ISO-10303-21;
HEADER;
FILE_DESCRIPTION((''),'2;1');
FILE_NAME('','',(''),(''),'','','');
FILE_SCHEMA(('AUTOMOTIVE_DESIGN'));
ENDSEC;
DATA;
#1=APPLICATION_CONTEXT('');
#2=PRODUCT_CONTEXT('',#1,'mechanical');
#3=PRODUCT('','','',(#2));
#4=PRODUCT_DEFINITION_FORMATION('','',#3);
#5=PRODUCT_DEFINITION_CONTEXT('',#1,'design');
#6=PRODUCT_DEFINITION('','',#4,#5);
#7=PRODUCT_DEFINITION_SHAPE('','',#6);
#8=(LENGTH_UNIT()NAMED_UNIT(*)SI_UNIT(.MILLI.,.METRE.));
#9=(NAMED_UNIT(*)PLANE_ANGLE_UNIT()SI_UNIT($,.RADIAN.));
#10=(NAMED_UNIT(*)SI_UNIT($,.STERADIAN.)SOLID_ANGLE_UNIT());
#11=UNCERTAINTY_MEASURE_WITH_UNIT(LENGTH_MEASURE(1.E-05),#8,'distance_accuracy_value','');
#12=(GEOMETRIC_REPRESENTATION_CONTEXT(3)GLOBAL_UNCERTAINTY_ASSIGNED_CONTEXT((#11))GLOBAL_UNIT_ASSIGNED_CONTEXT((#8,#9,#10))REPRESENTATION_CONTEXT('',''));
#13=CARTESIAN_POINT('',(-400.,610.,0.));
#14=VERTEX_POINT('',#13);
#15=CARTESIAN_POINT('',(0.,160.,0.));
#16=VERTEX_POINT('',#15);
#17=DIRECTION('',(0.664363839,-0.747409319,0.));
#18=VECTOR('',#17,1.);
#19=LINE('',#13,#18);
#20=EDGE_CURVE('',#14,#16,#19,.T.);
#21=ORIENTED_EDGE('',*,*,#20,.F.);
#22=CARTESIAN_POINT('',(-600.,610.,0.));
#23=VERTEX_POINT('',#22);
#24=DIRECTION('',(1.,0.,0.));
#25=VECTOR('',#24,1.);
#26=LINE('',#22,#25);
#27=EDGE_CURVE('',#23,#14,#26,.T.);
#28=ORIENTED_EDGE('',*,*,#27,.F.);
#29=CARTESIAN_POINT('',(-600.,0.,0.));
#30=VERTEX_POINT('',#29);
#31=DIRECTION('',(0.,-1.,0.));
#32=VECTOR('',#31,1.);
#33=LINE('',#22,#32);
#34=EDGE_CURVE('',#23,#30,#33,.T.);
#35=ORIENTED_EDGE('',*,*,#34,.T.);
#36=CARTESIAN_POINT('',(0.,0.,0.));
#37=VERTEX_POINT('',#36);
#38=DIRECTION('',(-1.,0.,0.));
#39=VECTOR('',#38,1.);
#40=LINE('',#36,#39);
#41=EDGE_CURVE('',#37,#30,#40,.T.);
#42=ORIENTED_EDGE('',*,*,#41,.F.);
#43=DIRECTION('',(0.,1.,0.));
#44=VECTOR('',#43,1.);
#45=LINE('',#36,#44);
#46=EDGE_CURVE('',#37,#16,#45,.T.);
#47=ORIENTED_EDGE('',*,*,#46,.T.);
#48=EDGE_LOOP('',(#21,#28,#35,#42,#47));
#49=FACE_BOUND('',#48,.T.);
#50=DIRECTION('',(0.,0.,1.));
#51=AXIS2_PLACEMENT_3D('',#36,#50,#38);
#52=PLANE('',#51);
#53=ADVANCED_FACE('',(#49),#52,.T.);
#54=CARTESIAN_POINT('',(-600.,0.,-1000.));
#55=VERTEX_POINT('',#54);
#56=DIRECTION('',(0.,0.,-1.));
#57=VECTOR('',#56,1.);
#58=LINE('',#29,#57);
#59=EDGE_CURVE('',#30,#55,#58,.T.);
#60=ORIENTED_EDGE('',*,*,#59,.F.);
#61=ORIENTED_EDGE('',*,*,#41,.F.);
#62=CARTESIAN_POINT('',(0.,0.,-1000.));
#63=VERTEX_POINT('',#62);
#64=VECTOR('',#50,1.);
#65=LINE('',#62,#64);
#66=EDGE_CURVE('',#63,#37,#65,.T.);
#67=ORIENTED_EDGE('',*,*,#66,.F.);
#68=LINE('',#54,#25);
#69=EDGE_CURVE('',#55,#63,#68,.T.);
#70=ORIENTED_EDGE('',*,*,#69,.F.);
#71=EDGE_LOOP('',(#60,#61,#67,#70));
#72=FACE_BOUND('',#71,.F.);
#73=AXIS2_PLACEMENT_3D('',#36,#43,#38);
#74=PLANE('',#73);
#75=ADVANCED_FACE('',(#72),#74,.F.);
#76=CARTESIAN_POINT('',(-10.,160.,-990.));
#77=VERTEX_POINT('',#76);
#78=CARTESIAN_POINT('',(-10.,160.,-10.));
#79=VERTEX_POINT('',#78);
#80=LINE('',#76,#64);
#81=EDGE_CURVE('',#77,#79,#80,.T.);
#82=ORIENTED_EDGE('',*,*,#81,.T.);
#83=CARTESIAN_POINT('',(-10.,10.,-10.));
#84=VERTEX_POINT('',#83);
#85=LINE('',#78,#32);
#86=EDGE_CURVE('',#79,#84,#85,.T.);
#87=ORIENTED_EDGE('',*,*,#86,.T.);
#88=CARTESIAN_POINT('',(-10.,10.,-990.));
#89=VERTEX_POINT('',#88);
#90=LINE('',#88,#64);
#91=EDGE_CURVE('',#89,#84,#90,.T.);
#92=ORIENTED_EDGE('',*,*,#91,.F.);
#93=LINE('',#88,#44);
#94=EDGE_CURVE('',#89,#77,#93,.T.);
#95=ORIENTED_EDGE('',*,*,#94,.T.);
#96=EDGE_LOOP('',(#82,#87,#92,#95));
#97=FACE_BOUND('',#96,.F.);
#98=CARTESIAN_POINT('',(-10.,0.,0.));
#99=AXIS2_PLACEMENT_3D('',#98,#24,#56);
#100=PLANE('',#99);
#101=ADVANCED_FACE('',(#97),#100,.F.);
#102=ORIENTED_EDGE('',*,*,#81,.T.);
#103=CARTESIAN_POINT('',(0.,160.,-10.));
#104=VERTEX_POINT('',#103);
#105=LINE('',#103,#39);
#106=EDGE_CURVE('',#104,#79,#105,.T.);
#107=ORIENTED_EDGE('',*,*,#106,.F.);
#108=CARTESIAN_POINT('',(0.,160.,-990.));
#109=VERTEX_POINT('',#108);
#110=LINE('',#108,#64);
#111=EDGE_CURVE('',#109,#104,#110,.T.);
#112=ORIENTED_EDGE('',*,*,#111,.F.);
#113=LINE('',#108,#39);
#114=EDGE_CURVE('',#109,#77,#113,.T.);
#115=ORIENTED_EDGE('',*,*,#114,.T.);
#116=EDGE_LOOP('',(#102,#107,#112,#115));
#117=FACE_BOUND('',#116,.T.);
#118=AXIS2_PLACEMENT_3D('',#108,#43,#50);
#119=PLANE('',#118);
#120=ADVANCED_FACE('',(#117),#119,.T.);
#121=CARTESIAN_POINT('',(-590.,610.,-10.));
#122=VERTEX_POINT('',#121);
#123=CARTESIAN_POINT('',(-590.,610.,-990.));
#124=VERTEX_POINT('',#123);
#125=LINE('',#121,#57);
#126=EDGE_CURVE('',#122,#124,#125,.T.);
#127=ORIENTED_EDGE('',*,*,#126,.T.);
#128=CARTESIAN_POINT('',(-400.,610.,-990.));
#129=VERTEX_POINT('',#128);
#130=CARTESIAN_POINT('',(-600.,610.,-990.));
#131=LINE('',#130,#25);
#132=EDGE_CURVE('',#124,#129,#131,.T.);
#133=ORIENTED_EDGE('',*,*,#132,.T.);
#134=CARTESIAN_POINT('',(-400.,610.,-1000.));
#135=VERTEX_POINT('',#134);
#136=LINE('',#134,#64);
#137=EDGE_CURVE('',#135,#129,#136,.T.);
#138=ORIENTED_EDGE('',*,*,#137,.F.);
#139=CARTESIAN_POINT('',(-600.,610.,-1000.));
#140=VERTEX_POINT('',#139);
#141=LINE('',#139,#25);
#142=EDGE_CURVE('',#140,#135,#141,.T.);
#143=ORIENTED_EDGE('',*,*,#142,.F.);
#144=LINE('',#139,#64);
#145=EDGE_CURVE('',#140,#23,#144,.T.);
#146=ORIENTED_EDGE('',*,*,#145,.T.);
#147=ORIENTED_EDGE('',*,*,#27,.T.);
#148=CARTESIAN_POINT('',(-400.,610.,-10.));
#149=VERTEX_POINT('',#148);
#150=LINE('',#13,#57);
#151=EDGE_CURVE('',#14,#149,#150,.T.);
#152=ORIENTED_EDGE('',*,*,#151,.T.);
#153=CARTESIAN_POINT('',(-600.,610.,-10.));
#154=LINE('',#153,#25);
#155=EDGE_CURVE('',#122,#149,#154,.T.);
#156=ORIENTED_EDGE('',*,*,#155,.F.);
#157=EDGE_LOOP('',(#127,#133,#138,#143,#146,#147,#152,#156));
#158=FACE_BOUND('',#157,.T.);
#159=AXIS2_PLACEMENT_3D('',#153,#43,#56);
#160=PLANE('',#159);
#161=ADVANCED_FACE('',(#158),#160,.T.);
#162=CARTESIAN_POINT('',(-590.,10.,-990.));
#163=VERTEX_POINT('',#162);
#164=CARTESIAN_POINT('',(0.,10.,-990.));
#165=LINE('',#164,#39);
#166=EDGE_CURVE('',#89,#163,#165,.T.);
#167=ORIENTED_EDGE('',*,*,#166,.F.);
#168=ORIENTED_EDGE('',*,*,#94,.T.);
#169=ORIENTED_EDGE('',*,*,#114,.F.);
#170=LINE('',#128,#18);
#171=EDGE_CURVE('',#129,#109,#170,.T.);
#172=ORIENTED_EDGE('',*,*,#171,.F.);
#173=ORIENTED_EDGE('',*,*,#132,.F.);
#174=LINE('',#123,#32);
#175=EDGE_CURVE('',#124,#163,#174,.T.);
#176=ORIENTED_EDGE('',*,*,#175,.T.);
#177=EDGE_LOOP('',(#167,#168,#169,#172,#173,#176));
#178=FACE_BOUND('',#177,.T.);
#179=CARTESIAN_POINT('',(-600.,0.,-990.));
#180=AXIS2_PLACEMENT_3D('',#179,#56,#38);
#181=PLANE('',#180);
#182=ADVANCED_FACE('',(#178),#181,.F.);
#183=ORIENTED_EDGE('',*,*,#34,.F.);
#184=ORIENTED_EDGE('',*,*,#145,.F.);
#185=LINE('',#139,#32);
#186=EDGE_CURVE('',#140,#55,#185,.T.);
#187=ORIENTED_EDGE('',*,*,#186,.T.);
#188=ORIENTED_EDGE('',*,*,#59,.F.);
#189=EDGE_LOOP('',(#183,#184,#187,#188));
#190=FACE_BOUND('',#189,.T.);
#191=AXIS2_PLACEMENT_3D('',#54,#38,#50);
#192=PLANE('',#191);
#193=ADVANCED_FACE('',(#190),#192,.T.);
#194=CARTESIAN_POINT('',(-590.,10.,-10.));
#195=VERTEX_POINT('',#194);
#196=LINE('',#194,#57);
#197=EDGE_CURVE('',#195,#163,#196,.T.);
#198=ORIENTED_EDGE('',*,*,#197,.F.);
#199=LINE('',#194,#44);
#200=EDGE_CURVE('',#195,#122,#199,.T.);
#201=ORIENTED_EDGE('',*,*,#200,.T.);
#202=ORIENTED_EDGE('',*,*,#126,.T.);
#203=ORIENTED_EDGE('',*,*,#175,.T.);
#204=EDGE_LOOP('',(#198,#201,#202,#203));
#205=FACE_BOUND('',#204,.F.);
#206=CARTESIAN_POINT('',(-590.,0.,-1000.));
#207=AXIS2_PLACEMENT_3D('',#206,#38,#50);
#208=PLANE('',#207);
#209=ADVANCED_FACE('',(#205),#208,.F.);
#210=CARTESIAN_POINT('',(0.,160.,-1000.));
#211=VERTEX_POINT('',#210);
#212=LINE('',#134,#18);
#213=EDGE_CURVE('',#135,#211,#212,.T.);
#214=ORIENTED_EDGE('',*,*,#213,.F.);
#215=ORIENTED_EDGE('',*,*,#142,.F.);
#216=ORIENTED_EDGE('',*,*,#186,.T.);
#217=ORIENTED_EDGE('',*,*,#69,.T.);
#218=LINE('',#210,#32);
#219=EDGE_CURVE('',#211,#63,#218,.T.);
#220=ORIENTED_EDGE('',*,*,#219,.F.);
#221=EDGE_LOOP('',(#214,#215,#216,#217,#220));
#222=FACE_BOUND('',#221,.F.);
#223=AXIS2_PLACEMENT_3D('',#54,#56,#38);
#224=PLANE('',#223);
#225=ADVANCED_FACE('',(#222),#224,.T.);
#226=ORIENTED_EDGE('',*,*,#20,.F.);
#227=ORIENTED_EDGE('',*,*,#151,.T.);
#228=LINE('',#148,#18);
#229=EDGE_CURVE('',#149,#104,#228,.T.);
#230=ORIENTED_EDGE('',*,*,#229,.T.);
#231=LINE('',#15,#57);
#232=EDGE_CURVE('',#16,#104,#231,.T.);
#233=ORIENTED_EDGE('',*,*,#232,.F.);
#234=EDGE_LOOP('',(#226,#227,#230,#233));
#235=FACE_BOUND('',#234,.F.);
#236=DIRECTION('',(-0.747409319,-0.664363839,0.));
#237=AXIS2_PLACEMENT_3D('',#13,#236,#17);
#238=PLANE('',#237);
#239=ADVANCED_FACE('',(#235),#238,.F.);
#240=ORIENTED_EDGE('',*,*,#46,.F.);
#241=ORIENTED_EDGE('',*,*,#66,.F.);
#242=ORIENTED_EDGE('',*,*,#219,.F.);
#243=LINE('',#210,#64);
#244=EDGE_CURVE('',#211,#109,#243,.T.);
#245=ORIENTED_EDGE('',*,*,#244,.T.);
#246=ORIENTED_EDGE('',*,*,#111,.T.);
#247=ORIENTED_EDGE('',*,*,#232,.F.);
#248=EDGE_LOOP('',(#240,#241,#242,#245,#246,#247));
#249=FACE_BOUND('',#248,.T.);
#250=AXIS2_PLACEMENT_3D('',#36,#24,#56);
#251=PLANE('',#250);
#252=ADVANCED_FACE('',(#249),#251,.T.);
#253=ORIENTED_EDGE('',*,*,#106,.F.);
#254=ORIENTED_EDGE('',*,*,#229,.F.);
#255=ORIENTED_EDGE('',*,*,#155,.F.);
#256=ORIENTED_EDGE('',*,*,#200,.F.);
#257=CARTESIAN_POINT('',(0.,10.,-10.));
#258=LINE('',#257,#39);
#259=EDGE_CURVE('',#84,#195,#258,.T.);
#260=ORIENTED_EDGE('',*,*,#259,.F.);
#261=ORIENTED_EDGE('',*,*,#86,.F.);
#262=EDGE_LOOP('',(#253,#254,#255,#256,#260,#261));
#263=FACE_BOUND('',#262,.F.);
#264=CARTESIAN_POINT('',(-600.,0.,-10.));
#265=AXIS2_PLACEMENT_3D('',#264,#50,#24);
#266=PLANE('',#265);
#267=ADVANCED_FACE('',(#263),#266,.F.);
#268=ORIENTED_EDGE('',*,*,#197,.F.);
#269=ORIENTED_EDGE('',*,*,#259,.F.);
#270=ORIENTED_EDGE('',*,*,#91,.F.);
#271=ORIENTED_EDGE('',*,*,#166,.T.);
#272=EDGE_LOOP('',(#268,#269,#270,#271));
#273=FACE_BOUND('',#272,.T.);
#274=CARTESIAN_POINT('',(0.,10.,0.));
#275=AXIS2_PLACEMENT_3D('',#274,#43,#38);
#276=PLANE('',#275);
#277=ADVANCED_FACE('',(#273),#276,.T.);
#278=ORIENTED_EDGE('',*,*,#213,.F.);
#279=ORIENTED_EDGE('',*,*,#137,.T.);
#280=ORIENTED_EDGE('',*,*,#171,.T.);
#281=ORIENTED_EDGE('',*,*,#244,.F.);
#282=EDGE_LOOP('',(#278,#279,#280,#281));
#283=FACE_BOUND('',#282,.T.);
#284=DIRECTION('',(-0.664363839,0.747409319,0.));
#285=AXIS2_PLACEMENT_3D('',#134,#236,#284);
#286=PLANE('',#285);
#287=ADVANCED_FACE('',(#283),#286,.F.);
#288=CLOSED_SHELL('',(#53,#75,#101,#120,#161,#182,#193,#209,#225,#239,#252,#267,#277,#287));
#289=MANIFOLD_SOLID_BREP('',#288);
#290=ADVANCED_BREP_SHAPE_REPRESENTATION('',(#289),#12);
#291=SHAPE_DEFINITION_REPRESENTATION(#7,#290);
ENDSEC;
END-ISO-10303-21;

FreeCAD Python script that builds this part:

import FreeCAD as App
import Part
import Sketcher
from FreeCAD import Vector
Q = App.Units.Quantity


def add_polygon(sketch, points):
    """Adds a closed chain of lines whose ends are joined by coincident constraints."""
    first, n = sketch.GeometryCount, len(points)
    for a, b in zip(points, points[1:] + points[:1]):
        sketch.addGeometry(Part.LineSegment(App.Vector(*a, 0), App.Vector(*b, 0)), False)
    for i in range(n):
        sketch.addConstraint(Sketcher.Constraint("Coincident", first + i, 2, first + (i + 1) % n, 1))

doc = App.newDocument("Part")
body = doc.addObject("PartDesign::Body", "Body")

sketch1 = body.newObject("Sketcher::SketchObject", "Sketch")
sketch1.AttachmentSupport = (doc.getObject("XZ_Plane"), [""])
sketch1.MapMode = "FlatFace"
add_polygon(sketch1, [(-600, 0), (0, 0), (0, -1000), (-600, -1000)])
sketch1.addConstraint([
    Sketcher.Constraint("Horizontal", 0),
    Sketcher.Constraint("Vertical", 1),
    Sketcher.Constraint("Horizontal", 2),
    Sketcher.Constraint("Vertical", 3),
    Sketcher.Constraint("Coincident", 0, 2, -1, 1),
    Sketcher.Constraint("DistanceX", 0, 1, 0, 2, Q("600 mm")),
    Sketcher.Constraint("DistanceY", 1, 2, 1, 1, Q("1000 mm")),
])
pad1 = body.newObject("PartDesign::Pad", "Pad")
pad1.Profile = sketch1
pad1.Length = 10
pad1.Reversed = True

sketch2 = body.newObject("Sketcher::SketchObject", "Sketch001")
sketch2.AttachmentSupport = (doc.getObject("XY_Plane"), [""])
sketch2.MapMode = "FlatFace"
add_polygon(sketch2, [(-600, 10), (0, 10), (0, 160), (-400, 610), (-600, 610)])
sketch2.addConstraint([
    Sketcher.Constraint("Horizontal", 0),
    Sketcher.Constraint("Vertical", 1),
    Sketcher.Constraint("Horizontal", 3),
    Sketcher.Constraint("Vertical", 4),
    Sketcher.Constraint("PointOnObject", 0, 2, -2),
    Sketcher.Constraint("Equal", 0, 4),
    Sketcher.Constraint("DistanceX", 0, 1, 0, 2, Q("600 mm")),
    Sketcher.Constraint("DistanceX", 3, 2, 3, 1, Q("200 mm")),
    Sketcher.Constraint("DistanceY", 1, 1, 1, 2, Q("150 mm")),
    Sketcher.Constraint("DistanceY", -1, 1, 0, 2, Q("10 mm")),
])
pad2 = body.newObject("PartDesign::Pad", "Pad001")
pad2.Profile = sketch2
pad2.Length = 10
pad2.Reversed = True
doc.recompute()

datumplane = body.newObject("PartDesign::Plane", "DatumPlane")
datumplane.AttachmentSupport = (doc.getObject("XY_Plane"), [""])
datumplane.MapMode = "FlatFace"
datumplane.AttachmentOffset = App.Placement(Vector(0, 0, -500), App.Rotation())
mirrored = body.newObject("PartDesign::Mirrored", "Mirrored")
mirrored.Originals = [pad2]
mirrored.MirrorPlane = (datumplane, [""])
body.Tip = mirrored

sketch3 = body.newObject("Sketcher::SketchObject", "Sketch002")
sketch3.AttachmentSupport = (doc.getObject("YZ_Plane"), [""])
sketch3.MapMode = "FlatFace"
add_polygon(sketch3, [(10, -10), (10, -990), (160, -990), (160, -10)])
sketch3.addConstraint([
    Sketcher.Constraint("Vertical", 0),
    Sketcher.Constraint("Horizontal", 1),
    Sketcher.Constraint("Vertical", 2),
    Sketcher.Constraint("Horizontal", 3),
    Sketcher.Constraint("DistanceX", 1, 1, 1, 2, Q("150 mm")),
    Sketcher.Constraint("DistanceY", 0, 2, 0, 1, Q("980 mm")),
    Sketcher.Constraint("DistanceX", -1, 1, 0, 2, Q("10 mm")),
    Sketcher.Constraint("DistanceY", 0, 2, -1, 1, Q("990 mm")),
])
pad3 = body.newObject("PartDesign::Pad", "Pad002")
pad3.Profile = sketch3
pad3.Length = 10
pad3.Reversed = True

sketch4 = body.newObject("Sketcher::SketchObject", "Sketch003")
sketch4.AttachmentSupport = (doc.getObject("YZ_Plane"), [""])
sketch4.MapMode = "FlatFace"
sketch4.AttachmentOffset = App.Placement(Vector(0, 0, -600), App.Rotation())
add_polygon(sketch4, [(10, -990), (10, -10), (610, -10), (610, -990)])
sketch4.addConstraint([
    Sketcher.Constraint("Vertical", 0),
    Sketcher.Constraint("Horizontal", 1),
    Sketcher.Constraint("Vertical", 2),
    Sketcher.Constraint("Horizontal", 3),
    Sketcher.Constraint("DistanceX", 1, 1, 1, 2, Q("600 mm")),
    Sketcher.Constraint("DistanceY", 0, 1, 0, 2, Q("980 mm")),
    Sketcher.Constraint("DistanceX", -1, 1, 0, 2, Q("10 mm")),
    Sketcher.Constraint("DistanceY", 0, 2, -1, 1, Q("10 mm")),
])
pad4 = body.newObject("PartDesign::Pad", "Pad003")
pad4.Profile = sketch4
pad4.Length = 10

doc.recompute()
